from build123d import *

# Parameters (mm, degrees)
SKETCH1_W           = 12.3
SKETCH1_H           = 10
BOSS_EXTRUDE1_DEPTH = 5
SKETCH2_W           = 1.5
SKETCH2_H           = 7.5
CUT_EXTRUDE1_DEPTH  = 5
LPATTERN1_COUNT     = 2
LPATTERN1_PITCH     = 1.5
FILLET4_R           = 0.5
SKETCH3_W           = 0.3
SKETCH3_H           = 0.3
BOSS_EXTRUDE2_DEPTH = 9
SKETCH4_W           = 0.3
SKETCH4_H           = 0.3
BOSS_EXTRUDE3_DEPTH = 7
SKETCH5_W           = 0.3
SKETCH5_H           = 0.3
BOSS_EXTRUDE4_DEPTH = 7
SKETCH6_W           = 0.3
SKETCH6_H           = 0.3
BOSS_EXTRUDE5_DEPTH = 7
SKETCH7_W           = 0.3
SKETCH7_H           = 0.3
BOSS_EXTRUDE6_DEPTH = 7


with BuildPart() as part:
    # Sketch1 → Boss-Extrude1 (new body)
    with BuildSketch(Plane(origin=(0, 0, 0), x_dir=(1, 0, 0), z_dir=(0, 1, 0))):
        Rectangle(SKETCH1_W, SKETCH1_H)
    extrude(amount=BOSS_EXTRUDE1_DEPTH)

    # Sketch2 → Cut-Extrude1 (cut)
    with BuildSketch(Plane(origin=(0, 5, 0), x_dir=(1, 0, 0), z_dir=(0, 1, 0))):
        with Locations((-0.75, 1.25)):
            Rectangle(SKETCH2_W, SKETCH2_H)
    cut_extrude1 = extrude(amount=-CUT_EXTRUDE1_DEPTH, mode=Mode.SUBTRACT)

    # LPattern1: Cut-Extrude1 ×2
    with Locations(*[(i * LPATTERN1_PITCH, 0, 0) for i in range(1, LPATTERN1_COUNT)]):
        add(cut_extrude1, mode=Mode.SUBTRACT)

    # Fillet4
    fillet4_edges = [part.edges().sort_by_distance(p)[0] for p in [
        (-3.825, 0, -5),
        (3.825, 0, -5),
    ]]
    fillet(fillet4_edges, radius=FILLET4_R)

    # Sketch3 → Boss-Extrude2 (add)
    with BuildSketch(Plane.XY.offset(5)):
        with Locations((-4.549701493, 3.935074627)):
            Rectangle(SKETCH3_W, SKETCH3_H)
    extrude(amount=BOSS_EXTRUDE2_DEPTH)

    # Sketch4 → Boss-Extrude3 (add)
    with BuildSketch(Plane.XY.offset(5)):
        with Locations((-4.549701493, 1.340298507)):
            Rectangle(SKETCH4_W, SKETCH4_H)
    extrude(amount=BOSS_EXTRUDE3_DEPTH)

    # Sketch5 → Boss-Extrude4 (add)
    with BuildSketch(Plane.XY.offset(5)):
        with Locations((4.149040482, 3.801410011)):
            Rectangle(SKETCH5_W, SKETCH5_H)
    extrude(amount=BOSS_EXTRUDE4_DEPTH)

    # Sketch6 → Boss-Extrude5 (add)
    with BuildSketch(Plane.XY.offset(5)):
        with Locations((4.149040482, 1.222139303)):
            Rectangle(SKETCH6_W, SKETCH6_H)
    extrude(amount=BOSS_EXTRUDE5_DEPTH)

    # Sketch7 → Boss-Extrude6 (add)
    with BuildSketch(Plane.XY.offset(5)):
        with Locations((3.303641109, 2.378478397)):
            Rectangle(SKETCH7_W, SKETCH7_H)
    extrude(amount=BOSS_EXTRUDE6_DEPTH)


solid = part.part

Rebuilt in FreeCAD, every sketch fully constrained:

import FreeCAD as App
import Part
import Sketcher

V = App.Vector


def edges_at(feature, points):
    """Names of the edges that pass closest to the given points."""
    edges = feature.Shape.Edges
    near = lambda p: min(range(len(edges)), key=lambda i: edges[i].distToShape(Part.Vertex(*p))[0])
    return sorted({f"Edge{near(p) + 1}" for p in points})

doc = App.newDocument("Part")
body = doc.addObject("PartDesign::Body", "Body")

# Sketch on XZ plane
sketch1 = body.newObject("Sketcher::SketchObject", "Sketch")
sketch1.AttachmentSupport = (doc.getObject("XZ_Plane"), [""])
sketch1.MapMode = "FlatFace"
sketch1.addGeometry([
    Part.LineSegment(V(-6, -5, 0), V(-6, 5, 0)),
    Part.LineSegment(V(-6, 5, 0), V(6, 5, 0)),
    Part.LineSegment(V(6, 5, 0), V(6, -5, 0)),
    Part.LineSegment(V(6, -5, 0), V(-6, -5, 0)),
], False)
sketch1.addConstraint([
    Sketcher.Constraint("Coincident", 0, 2, 1, 1),
    Sketcher.Constraint("Coincident", 1, 2, 2, 1),
    Sketcher.Constraint("Coincident", 2, 2, 3, 1),
    Sketcher.Constraint("Coincident", 3, 2, 0, 1),
    Sketcher.Constraint("Vertical", 0),
    Sketcher.Constraint("Horizontal", 1),
    Sketcher.Constraint("Vertical", 2),
    Sketcher.Constraint("Horizontal", 3),
    Sketcher.Constraint("Symmetric", 0, 2, 2, 2, -1, 1),
    Sketcher.Constraint("DistanceY", 0, 1, 0, 2, 10.0),
    Sketcher.Constraint("DistanceX", 1, 1, 1, 2, 12.3),
])
pad1 = body.newObject("PartDesign::Pad", "Pad")
pad1.Profile = sketch1
pad1.Length = 5
pad1.Reversed = True

# Sketch on XZ plane
sketch2 = body.newObject("Sketcher::SketchObject", "Sketch001")
sketch2.AttachmentSupport = (doc.getObject("XZ_Plane"), [""])
sketch2.MapMode = "FlatFace"
sketch2.AttachmentOffset = App.Placement(V(0, 0, -5), App.Rotation())
sketch2.addGeometry([
    Part.LineSegment(V(-1.5, -5, 0), V(-1.5, 2.5, 0)),
    Part.LineSegment(V(-1.5, 2.5, 0), V(0, 2.5, 0)),
    Part.LineSegment(V(0, 2.5, 0), V(0, -5, 0)),
    Part.LineSegment(V(0, -5, 0), V(-1.5, -5, 0)),
], False)
sketch2.addConstraint([
    Sketcher.Constraint("Coincident", 0, 2, 1, 1),
    Sketcher.Constraint("Coincident", 1, 2, 2, 1),
    Sketcher.Constraint("Coincident", 2, 2, 3, 1),
    Sketcher.Constraint("Coincident", 3, 2, 0, 1),
    Sketcher.Constraint("Vertical", 0),
    Sketcher.Constraint("Horizontal", 1),
    Sketcher.Constraint("Vertical", 2),
    Sketcher.Constraint("Horizontal", 3),
    Sketcher.Constraint("PointOnObject", 1, 2, -2),
    Sketcher.Constraint("DistanceX", 1, 1, 1, 2, 1.5),
    Sketcher.Constraint("DistanceY", 0, 1, 0, 2, 7.5),
    Sketcher.Constraint("DistanceY", 2, 2, -1, 1, 5.0),
])
pocket1 = body.newObject("PartDesign::Pocket", "Pocket")
pocket1.Profile = sketch2
pocket1.Length = 5
pocket1.Reversed = True
doc.recompute()

linearpattern = body.newObject("PartDesign::LinearPattern", "LinearPattern")
linearpattern.Originals = [pocket1]
linearpattern.Direction = (doc.getObject("X_Axis"), [""])
linearpattern.Mode = "offset"
linearpattern.Offset = 1.5
linearpattern.Occurrences = 2
body.Tip = linearpattern
doc.recompute()

fillet = body.newObject("PartDesign::Fillet", "Fillet")
fillet.Base = (linearpattern, edges_at(linearpattern, [(-3.825, 0, -5), (3.825, 0, -5)]))
fillet.Radius = 0.5

# Sketch on XY plane
sketch3 = body.newObject("Sketcher::SketchObject", "Sketch002")
sketch3.AttachmentSupport = (doc.getObject("XY_Plane"), [""])
sketch3.MapMode = "FlatFace"
sketch3.AttachmentOffset = App.Placement(V(0, 0, 5), App.Rotation())
sketch3.addGeometry([
    Part.LineSegment(V(-4.7, 4.09, 0), V(-4.7, 3.79, 0)),
    Part.LineSegment(V(-4.7, 3.79, 0), V(-4.4, 3.79, 0)),
    Part.LineSegment(V(-4.4, 3.79, 0), V(-4.4, 4.09, 0)),
    Part.LineSegment(V(-4.4, 4.09, 0), V(-4.7, 4.09, 0)),
], False)
sketch3.addConstraint([
    Sketcher.Constraint("Coincident", 0, 2, 1, 1),
    Sketcher.Constraint("Coincident", 1, 2, 2, 1),
    Sketcher.Constraint("Coincident", 2, 2, 3, 1),
    Sketcher.Constraint("Coincident", 3, 2, 0, 1),
    Sketcher.Constraint("Vertical", 0),
    Sketcher.Constraint("Horizontal", 1),
    Sketcher.Constraint("Vertical", 2),
    Sketcher.Constraint("Horizontal", 3),
    Sketcher.Constraint("Equal", 3, 0),
    Sketcher.Constraint("DistanceX", 1, 1, 1, 2, 0.3),
    Sketcher.Constraint("DistanceX", 0, 2, -1, 1, 4.699701),
    Sketcher.Constraint("DistanceY", -1, 1, 0, 2, 3.785075),
])
pad2 = body.newObject("PartDesign::Pad", "Pad001")
pad2.Profile = sketch3
pad2.Length = 9

# Sketch on XY plane
sketch4 = body.newObject("Sketcher::SketchObject", "Sketch003")
sketch4.AttachmentSupport = (doc.getObject("XY_Plane"), [""])
sketch4.MapMode = "FlatFace"
sketch4.AttachmentOffset = App.Placement(V(0, 0, 5), App.Rotation())
sketch4.addGeometry([
    Part.LineSegment(V(-4.7, 1.49, 0), V(-4.7, 1.19, 0)),
    Part.LineSegment(V(-4.7, 1.19, 0), V(-4.4, 1.19, 0)),
    Part.LineSegment(V(-4.4, 1.19, 0), V(-4.4, 1.49, 0)),
    Part.LineSegment(V(-4.4, 1.49, 0), V(-4.7, 1.49, 0)),
], False)
sketch4.addConstraint([
    Sketcher.Constraint("Coincident", 0, 2, 1, 1),
    Sketcher.Constraint("Coincident", 1, 2, 2, 1),
    Sketcher.Constraint("Coincident", 2, 2, 3, 1),
    Sketcher.Constraint("Coincident", 3, 2, 0, 1),
    Sketcher.Constraint("Vertical", 0),
    Sketcher.Constraint("Horizontal", 1),
    Sketcher.Constraint("Vertical", 2),
    Sketcher.Constraint("Horizontal", 3),
    Sketcher.Constraint("Equal", 3, 0),
    Sketcher.Constraint("DistanceX", 1, 1, 1, 2, 0.3),
    Sketcher.Constraint("DistanceX", 0, 2, -1, 1, 4.699701),
    Sketcher.Constraint("DistanceY", -1, 1, 0, 2, 1.190299),
])
pad3 = body.newObject("PartDesign::Pad", "Pad002")
pad3.Profile = sketch4
pad3.Length = 7

# Sketch on XY plane
sketch5 = body.newObject("Sketcher::SketchObject", "Sketch004")
sketch5.AttachmentSupport = (doc.getObject("XY_Plane"), [""])
sketch5.MapMode = "FlatFace"
sketch5.AttachmentOffset = App.Placement(V(0, 0, 5), App.Rotation())
sketch5.addGeometry([
    Part.LineSegment(V(4, 3.95, 0), V(4, 3.65, 0)),
    Part.LineSegment(V(4, 3.65, 0), V(4.3, 3.65, 0)),
    Part.LineSegment(V(4.3, 3.65, 0), V(4.3, 3.95, 0)),
    Part.LineSegment(V(4.3, 3.95, 0), V(4, 3.95, 0)),
], False)
sketch5.addConstraint([
    Sketcher.Constraint("Coincident", 0, 2, 1, 1),
    Sketcher.Constraint("Coincident", 1, 2, 2, 1),
    Sketcher.Constraint("Coincident", 2, 2, 3, 1),
    Sketcher.Constraint("Coincident", 3, 2, 0, 1),
    Sketcher.Constraint("Vertical", 0),
    Sketcher.Constraint("Horizontal", 1),
    Sketcher.Constraint("Vertical", 2),
    Sketcher.Constraint("Horizontal", 3),
    Sketcher.Constraint("Equal", 3, 0),
    Sketcher.Constraint("DistanceX", 1, 1, 1, 2, 0.3),
    Sketcher.Constraint("DistanceX", -1, 1, 0, 2, 3.99904),
    Sketcher.Constraint("DistanceY", -1, 1, 0, 2, 3.65141),
])
pad4 = body.newObject("PartDesign::Pad", "Pad003")
pad4.Profile = sketch5
pad4.Length = 7

# Sketch on XY plane
sketch6 = body.newObject("Sketcher::SketchObject", "Sketch005")
sketch6.AttachmentSupport = (doc.getObject("XY_Plane"), [""])
sketch6.MapMode = "FlatFace"
sketch6.AttachmentOffset = App.Placement(V(0, 0, 5), App.Rotation())
sketch6.addGeometry([
    Part.LineSegment(V(4, 1.37, 0), V(4, 1.07, 0)),
    Part.LineSegment(V(4, 1.07, 0), V(4.3, 1.07, 0)),
    Part.LineSegment(V(4.3, 1.07, 0), V(4.3, 1.37, 0)),
    Part.LineSegment(V(4.3, 1.37, 0), V(4, 1.37, 0)),
], False)
sketch6.addConstraint([
    Sketcher.Constraint("Coincident", 0, 2, 1, 1),
    Sketcher.Constraint("Coincident", 1, 2, 2, 1),
    Sketcher.Constraint("Coincident", 2, 2, 3, 1),
    Sketcher.Constraint("Coincident", 3, 2, 0, 1),
    Sketcher.Constraint("Vertical", 0),
    Sketcher.Constraint("Horizontal", 1),
    Sketcher.Constraint("Vertical", 2),
    Sketcher.Constraint("Horizontal", 3),
    Sketcher.Constraint("Equal", 3, 0),
    Sketcher.Constraint("DistanceX", 1, 1, 1, 2, 0.3),
    Sketcher.Constraint("DistanceX", -1, 1, 0, 2, 3.99904),
    Sketcher.Constraint("DistanceY", -1, 1, 0, 2, 1.072139),
])
pad5 = body.newObject("PartDesign::Pad", "Pad004")
pad5.Profile = sketch6
pad5.Length = 7

# Sketch on XY plane
sketch7 = body.newObject("Sketcher::SketchObject", "Sketch006")
sketch7.AttachmentSupport = (doc.getObject("XY_Plane"), [""])
sketch7.MapMode = "FlatFace"
sketch7.AttachmentOffset = App.Placement(V(0, 0, 5), App.Rotation())
sketch7.addGeometry([
    Part.LineSegment(V(3.15, 2.53, 0), V(3.15, 2.23, 0)),
    Part.LineSegment(V(3.15, 2.23, 0), V(3.45, 2.23, 0)),
    Part.LineSegment(V(3.45, 2.23, 0), V(3.45, 2.53, 0)),
    Part.LineSegment(V(3.45, 2.53, 0), V(3.15, 2.53, 0)),
], False)
sketch7.addConstraint([
    Sketcher.Constraint("Coincident", 0, 2, 1, 1),
    Sketcher.Constraint("Coincident", 1, 2, 2, 1),
    Sketcher.Constraint("Coincident", 2, 2, 3, 1),
    Sketcher.Constraint("Coincident", 3, 2, 0, 1),
    Sketcher.Constraint("Vertical", 0),
    Sketcher.Constraint("Horizontal", 1),
    Sketcher.Constraint("Vertical", 2),
    Sketcher.Constraint("Horizontal", 3),
    Sketcher.Constraint("Equal", 3, 0),
    Sketcher.Constraint("DistanceX", 1, 1, 1, 2, 0.3),
    Sketcher.Constraint("DistanceX", -1, 1, 0, 2, 3.153641),
    Sketcher.Constraint("DistanceY", -1, 1, 0, 2, 2.228478),
])
pad6 = body.newObject("PartDesign::Pad", "Pad005")
pad6.Profile = sketch7
pad6.Length = 7

doc.recompute()
